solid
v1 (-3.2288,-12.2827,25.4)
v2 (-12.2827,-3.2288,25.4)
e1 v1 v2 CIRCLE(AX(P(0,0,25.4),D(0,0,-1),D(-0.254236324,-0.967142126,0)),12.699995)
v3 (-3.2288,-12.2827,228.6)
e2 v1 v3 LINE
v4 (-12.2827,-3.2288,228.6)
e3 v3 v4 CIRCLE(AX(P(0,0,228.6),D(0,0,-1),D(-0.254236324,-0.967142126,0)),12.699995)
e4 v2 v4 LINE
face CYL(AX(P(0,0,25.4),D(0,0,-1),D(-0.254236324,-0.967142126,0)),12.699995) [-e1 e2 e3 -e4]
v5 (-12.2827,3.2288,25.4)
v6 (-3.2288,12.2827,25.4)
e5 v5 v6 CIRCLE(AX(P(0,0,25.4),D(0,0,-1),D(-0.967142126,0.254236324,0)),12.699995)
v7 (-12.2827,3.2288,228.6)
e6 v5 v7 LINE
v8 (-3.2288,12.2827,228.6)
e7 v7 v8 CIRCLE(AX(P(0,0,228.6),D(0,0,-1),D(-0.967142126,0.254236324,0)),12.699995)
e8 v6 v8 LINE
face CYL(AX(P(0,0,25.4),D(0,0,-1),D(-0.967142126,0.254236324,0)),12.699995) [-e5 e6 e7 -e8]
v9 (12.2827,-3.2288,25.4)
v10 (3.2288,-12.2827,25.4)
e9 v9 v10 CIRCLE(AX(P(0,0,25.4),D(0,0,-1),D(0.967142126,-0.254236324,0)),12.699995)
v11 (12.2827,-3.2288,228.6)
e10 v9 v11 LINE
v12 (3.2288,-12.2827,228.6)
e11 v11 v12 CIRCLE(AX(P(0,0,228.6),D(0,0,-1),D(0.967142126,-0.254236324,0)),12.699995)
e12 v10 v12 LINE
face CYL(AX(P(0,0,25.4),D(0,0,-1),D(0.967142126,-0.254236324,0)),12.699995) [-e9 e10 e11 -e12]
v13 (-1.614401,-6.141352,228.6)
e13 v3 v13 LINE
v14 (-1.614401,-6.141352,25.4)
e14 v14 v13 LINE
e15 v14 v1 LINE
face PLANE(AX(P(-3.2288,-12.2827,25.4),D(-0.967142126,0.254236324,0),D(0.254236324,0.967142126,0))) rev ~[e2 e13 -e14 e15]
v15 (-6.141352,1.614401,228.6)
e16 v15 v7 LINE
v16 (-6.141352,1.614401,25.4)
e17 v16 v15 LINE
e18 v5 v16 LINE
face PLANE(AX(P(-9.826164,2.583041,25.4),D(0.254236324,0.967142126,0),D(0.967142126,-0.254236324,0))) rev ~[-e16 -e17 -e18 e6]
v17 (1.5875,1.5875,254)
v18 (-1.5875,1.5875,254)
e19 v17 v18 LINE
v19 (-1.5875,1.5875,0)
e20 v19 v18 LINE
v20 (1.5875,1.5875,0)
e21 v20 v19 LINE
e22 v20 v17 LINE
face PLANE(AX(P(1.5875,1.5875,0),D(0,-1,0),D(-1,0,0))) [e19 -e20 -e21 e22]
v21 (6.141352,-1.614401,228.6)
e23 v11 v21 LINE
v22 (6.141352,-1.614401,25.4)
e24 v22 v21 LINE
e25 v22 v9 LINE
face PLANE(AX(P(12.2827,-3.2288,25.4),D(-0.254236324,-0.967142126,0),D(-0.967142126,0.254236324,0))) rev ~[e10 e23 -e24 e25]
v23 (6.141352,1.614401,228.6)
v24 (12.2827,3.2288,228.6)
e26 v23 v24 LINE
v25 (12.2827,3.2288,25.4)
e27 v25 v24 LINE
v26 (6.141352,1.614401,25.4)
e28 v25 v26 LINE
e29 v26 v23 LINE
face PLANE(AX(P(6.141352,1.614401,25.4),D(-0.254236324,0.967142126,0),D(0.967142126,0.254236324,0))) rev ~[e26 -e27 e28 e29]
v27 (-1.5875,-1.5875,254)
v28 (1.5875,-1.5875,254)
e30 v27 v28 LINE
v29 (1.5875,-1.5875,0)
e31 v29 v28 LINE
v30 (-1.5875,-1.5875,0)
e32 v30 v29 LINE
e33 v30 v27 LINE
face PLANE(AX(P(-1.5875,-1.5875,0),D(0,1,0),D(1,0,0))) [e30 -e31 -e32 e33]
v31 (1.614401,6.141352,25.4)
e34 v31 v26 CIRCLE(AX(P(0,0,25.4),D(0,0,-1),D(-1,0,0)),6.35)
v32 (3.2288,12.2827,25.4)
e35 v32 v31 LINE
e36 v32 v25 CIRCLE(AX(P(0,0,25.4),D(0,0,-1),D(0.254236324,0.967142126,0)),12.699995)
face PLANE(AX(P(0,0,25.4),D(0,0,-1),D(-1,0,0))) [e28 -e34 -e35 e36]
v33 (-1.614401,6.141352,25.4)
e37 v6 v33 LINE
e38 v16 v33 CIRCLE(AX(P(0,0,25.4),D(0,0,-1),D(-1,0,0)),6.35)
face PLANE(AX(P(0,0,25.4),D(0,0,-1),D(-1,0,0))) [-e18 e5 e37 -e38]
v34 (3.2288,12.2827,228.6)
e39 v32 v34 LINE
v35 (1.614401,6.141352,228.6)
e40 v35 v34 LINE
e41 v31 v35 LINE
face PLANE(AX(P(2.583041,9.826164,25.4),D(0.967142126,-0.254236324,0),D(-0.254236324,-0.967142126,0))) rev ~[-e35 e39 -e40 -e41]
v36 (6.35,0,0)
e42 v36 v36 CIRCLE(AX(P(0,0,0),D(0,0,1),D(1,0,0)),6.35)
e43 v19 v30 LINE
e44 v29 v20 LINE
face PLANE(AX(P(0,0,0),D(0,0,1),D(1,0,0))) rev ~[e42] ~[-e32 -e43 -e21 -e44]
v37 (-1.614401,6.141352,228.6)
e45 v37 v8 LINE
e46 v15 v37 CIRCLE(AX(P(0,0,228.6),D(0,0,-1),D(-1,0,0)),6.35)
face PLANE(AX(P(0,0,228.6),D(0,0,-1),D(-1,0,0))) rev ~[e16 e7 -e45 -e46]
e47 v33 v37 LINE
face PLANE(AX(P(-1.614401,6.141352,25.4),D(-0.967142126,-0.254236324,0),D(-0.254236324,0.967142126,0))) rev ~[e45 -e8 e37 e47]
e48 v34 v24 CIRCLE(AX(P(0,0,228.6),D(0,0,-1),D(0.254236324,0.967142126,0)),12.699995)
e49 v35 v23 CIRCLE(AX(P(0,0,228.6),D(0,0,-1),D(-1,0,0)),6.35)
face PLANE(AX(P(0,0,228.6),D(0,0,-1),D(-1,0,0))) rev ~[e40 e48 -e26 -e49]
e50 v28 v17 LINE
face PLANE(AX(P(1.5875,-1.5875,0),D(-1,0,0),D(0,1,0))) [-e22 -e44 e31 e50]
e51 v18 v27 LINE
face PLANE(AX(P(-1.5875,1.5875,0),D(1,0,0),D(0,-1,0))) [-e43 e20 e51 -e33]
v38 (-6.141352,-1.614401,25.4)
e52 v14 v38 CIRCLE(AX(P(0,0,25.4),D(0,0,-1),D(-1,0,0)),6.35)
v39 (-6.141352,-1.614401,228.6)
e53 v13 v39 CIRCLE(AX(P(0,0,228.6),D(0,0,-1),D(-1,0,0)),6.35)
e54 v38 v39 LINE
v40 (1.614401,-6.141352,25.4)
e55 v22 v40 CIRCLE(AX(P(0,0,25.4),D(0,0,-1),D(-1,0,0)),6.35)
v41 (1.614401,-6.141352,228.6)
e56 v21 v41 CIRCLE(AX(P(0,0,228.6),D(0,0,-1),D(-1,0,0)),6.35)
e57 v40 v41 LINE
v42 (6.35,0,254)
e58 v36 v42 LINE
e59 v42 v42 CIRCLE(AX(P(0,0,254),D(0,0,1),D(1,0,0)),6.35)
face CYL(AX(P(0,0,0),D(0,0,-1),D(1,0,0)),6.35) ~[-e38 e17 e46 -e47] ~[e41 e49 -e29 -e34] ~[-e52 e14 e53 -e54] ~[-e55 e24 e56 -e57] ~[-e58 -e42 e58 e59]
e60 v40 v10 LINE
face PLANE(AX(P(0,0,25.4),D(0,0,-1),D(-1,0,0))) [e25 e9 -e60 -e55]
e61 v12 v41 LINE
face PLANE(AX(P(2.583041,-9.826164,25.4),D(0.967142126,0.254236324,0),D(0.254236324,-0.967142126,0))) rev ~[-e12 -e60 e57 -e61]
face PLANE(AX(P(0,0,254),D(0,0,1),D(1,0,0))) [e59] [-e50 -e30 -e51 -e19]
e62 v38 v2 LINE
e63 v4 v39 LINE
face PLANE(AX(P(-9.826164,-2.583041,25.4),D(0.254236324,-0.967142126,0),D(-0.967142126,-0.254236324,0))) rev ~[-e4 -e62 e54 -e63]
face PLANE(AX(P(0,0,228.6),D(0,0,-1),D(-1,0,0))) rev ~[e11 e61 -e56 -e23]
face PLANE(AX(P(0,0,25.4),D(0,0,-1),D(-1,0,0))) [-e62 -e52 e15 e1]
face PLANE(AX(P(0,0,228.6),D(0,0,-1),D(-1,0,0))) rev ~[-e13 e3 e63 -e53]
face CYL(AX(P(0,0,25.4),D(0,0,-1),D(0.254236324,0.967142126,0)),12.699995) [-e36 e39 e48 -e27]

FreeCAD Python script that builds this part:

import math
import FreeCAD as App
import Part
import Sketcher
from FreeCAD import Vector
Q = App.Units.Quantity

doc = App.newDocument("Part")
body = doc.addObject("PartDesign::Body", "Body")

sketch1 = body.newObject("Sketcher::SketchObject", "Sketch")
sketch1.AttachmentSupport = (doc.getObject("XY_Plane"), [""])
sketch1.MapMode = "FlatFace"
sketch1.addGeometry(Part.Circle(Vector(0, 0, 0), Vector(0, 0, 1), 6), False)
sketch1.addConstraint([
    Sketcher.Constraint("Coincident", 0, 3, -1, 1),
    Sketcher.Constraint("Diameter", 0, Q("0.5 in")),
])
pad1 = body.newObject("PartDesign::Pad", "Pad")
pad1.Profile = sketch1
pad1.Length = Q("10 in")

sketch2 = body.newObject("Sketcher::SketchObject", "Sketch001")
sketch2.AttachmentSupport = (doc.getObject("XY_Plane"), [""])
sketch2.MapMode = "FlatFace"
sketch2.addGeometry([
    Part.LineSegment(Vector(-1.6, 1.6, 0), Vector(-1.6, -1.6, 0)),
    Part.LineSegment(Vector(-1.6, -1.6, 0), Vector(1.6, -1.6, 0)),
    Part.LineSegment(Vector(1.6, -1.6, 0), Vector(1.6, 1.6, 0)),
    Part.LineSegment(Vector(1.6, 1.6, 0), Vector(-1.6, 1.6, 0)),
], False)
sketch2.addConstraint([
    Sketcher.Constraint("Coincident", 0, 2, 1, 1),
    Sketcher.Constraint("Coincident", 1, 2, 2, 1),
    Sketcher.Constraint("Coincident", 2, 2, 3, 1),
    Sketcher.Constraint("Coincident", 3, 2, 0, 1),
    Sketcher.Constraint("Vertical", 0),
    Sketcher.Constraint("Horizontal", 1),
    Sketcher.Constraint("Vertical", 2),
    Sketcher.Constraint("Horizontal", 3),
    Sketcher.Constraint("Symmetric", 0, 2, 2, 2, -1, 1),
    Sketcher.Constraint("Equal", 3, 0),
    Sketcher.Constraint("DistanceX", 1, 1, 1, 2, Q("0.125 in")),
])
pocket1 = body.newObject("PartDesign::Pocket", "Pocket")
pocket1.Profile = sketch2
pocket1.Length = Q("10 in")
pocket1.Reversed = True

sketch3 = body.newObject("Sketcher::SketchObject", "Sketch002")
sketch3.AttachmentSupport = (doc.getObject("XY_Plane"), [""])
sketch3.MapMode = "FlatFace"
sketch3.AttachmentOffset = App.Placement(Vector(0, 0, 1 * 25.4), App.Rotation())
sketch3.addGeometry([
    Part.LineSegment(Vector(-6, 2, 0), Vector(-12, 3, 0)),
    Part.ArcOfCircle(Part.Circle(Vector(0, 0, 0), Vector(0, 0, 1), 13), math.radians(105), math.radians(165)),
    Part.LineSegment(Vector(-3, 12, 0), Vector(-2, 6, 0)),
    Part.ArcOfCircle(Part.Circle(Vector(0, 0, 0), Vector(0, 0, 1), 6), math.radians(105), math.radians(165)),
    Part.LineSegment(Vector(-12, -3, 0), Vector(-6, -2, 0)),
    Part.ArcOfCircle(Part.Circle(Vector(0, 0, 0), Vector(0, 0, 1), 6), math.radians(-165), math.radians(-105)),
    Part.LineSegment(Vector(-2, -6, 0), Vector(-3, -12, 0)),
    Part.ArcOfCircle(Part.Circle(Vector(0, 0, 0), Vector(0, 0, 1), 13), math.radians(-165), math.radians(-105)),
    Part.LineSegment(Vector(2, 6, 0), Vector(3, 12, 0)),
    Part.ArcOfCircle(Part.Circle(Vector(0, 0, 0), Vector(0, 0, 1), 13), math.radians(15), math.radians(75)),
    Part.LineSegment(Vector(12, 3, 0), Vector(6, 2, 0)),
    Part.ArcOfCircle(Part.Circle(Vector(0, 0, 0), Vector(0, 0, 1), 6), math.radians(15), math.radians(75)),
    Part.LineSegment(Vector(3, -12, 0), Vector(2, -6, 0)),
    Part.ArcOfCircle(Part.Circle(Vector(0, 0, 0), Vector(0, 0, 1), 6), math.radians(-75), math.radians(-15)),
    Part.LineSegment(Vector(6, -2, 0), Vector(12, -3, 0)),
    Part.ArcOfCircle(Part.Circle(Vector(0, 0, 0), Vector(0, 0, 1), 13), math.radians(-75), math.radians(-15)),
], False)
sketch3.addConstraint([
    Sketcher.Constraint("Coincident", 0, 2, 1, 2),
    Sketcher.Constraint("Coincident", 1, 1, 2, 1),
    Sketcher.Constraint("Coincident", 2, 2, 3, 1),
    Sketcher.Constraint("Coincident", 3, 2, 0, 1),
    Sketcher.Constraint("Coincident", 4, 2, 5, 1),
    Sketcher.Constraint("Coincident", 5, 2, 6, 1),
    Sketcher.Constraint("Coincident", 6, 2, 7, 2),
    Sketcher.Constraint("Coincident", 7, 1, 4, 1),
    Sketcher.Constraint("Coincident", 8, 2, 9, 2),
    Sketcher.Constraint("Coincident", 9, 1, 10, 1),
    Sketcher.Constraint("Coincident", 10, 2, 11, 1),
    Sketcher.Constraint("Coincident", 11, 2, 8, 1),
    Sketcher.Constraint("Coincident", 12, 2, 13, 1),
    Sketcher.Constraint("Coincident", 13, 2, 14, 1),
    Sketcher.Constraint("Coincident", 14, 2, 15, 2),
    Sketcher.Constraint("Coincident", 15, 1, 12, 1),
    Sketcher.Constraint("Coincident", 1, 3, -1, 1),
    Sketcher.Constraint("Coincident", 3, 3, -1, 1),
    Sketcher.Constraint("Coincident", 5, 3, -1, 1),
    Sketcher.Constraint("Coincident", 7, 3, -1, 1),
    Sketcher.Constraint("Coincident", 9, 3, -1, 1),
    Sketcher.Constraint("Coincident", 11, 3, -1, 1),
    Sketcher.Constraint("Coincident", 13, 3, -1, 1),
    Sketcher.Constraint("Coincident", 15, 3, -1, 1),
    Sketcher.Constraint("Equal", 3, 5),
    Sketcher.Constraint("Equal", 1, 7),
    Sketcher.Constraint("Equal", 7, 9),
    Sketcher.Constraint("Equal", 5, 11),
    Sketcher.Constraint("Equal", 11, 13),
    Sketcher.Constraint("Equal", 9, 15),
    Sketcher.Constraint("Perpendicular", 2, 4),
    Sketcher.Constraint("Perpendicular", 0, 6),
    Sketcher.Constraint("Parallel", 6, 8),
    Sketcher.Constraint("Parallel", 4, 10),
    Sketcher.Constraint("Perpendicular", 10, 12),
    Sketcher.Constraint("Perpendicular", 8, 14),
    Sketcher.Constraint("Horizontal", 1, 1, 8, 2),
    Sketcher.Constraint("Horizontal", 0, 2, 9, 1),
    Sketcher.Constraint("Horizontal", 3, 2, 10, 2),
    Sketcher.Constraint("Horizontal", 5, 2, 12, 2),
    Sketcher.Constraint("Horizontal", 4, 2, 13, 2),
    Sketcher.Constraint("Vertical", 3, 2, 4, 2),
    Sketcher.Constraint("Vertical", 2, 2, 5, 2),
    Sketcher.Constraint("Radius", 1, Q("0.5 in")),
    Sketcher.Constraint("Radius", 3, Q("0.25 in")),
    Sketcher.Constraint("DistanceY", 6, 2, 4, 2, Q("0.42 in")),
    Sketcher.Constraint("DistanceX", 7, 1, 5, 2, Q("0.42 in")),
    Sketcher.Constraint("DistanceX", 0, 2, -1, 1, 12.2827),
])
pad2 = body.newObject("PartDesign::Pad", "Pad001")
pad2.Profile = sketch3
pad2.Length = Q("8 in")

doc.recompute()
